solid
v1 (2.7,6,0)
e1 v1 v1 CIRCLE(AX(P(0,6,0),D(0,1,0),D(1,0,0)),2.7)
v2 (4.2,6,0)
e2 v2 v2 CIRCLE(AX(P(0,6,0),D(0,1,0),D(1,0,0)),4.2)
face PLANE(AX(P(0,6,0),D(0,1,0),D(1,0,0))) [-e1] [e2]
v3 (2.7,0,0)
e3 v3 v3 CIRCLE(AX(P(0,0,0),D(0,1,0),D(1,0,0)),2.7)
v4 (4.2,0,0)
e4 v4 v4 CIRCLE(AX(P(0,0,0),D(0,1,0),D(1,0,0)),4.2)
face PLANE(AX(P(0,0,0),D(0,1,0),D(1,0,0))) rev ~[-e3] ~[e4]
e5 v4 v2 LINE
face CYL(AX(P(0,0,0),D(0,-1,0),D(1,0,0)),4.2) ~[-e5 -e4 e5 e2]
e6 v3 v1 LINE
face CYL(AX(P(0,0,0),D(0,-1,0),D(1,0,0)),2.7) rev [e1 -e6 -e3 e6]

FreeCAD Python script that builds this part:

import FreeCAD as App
import Part
import Sketcher
Q = App.Units.Quantity

doc = App.newDocument("Part")
body = doc.addObject("PartDesign::Body", "Body")

# Sketch on XZ plane
sketch1 = body.newObject("Sketcher::SketchObject", "Sketch")
sketch1.AttachmentSupport = (doc.getObject("XZ_Plane"), [""])
sketch1.MapMode = "FlatFace"
sketch1.addGeometry(Part.Circle(App.Vector(0, 0, 0), App.Vector(0, 0, 1), 4.2), False)
sketch1.addGeometry(Part.Circle(App.Vector(0, 0, 0), App.Vector(0, 0, 1), 2.7), False)
sketch1.addConstraint(Sketcher.Constraint("Coincident", 0, 3, -1, 1))
sketch1.addConstraint(Sketcher.Constraint("Coincident", 1, 3, -1, 1))
sketch1.addConstraint(Sketcher.Constraint("Diameter", 0, Q("8.4 mm")))
sketch1.addConstraint(Sketcher.Constraint("Diameter", 1, Q("5.4 mm")))
pad1 = body.newObject("PartDesign::Pad", "Pad")
pad1.Profile = sketch1
pad1.Length = 6
pad1.Reversed = True

doc.recompute()
